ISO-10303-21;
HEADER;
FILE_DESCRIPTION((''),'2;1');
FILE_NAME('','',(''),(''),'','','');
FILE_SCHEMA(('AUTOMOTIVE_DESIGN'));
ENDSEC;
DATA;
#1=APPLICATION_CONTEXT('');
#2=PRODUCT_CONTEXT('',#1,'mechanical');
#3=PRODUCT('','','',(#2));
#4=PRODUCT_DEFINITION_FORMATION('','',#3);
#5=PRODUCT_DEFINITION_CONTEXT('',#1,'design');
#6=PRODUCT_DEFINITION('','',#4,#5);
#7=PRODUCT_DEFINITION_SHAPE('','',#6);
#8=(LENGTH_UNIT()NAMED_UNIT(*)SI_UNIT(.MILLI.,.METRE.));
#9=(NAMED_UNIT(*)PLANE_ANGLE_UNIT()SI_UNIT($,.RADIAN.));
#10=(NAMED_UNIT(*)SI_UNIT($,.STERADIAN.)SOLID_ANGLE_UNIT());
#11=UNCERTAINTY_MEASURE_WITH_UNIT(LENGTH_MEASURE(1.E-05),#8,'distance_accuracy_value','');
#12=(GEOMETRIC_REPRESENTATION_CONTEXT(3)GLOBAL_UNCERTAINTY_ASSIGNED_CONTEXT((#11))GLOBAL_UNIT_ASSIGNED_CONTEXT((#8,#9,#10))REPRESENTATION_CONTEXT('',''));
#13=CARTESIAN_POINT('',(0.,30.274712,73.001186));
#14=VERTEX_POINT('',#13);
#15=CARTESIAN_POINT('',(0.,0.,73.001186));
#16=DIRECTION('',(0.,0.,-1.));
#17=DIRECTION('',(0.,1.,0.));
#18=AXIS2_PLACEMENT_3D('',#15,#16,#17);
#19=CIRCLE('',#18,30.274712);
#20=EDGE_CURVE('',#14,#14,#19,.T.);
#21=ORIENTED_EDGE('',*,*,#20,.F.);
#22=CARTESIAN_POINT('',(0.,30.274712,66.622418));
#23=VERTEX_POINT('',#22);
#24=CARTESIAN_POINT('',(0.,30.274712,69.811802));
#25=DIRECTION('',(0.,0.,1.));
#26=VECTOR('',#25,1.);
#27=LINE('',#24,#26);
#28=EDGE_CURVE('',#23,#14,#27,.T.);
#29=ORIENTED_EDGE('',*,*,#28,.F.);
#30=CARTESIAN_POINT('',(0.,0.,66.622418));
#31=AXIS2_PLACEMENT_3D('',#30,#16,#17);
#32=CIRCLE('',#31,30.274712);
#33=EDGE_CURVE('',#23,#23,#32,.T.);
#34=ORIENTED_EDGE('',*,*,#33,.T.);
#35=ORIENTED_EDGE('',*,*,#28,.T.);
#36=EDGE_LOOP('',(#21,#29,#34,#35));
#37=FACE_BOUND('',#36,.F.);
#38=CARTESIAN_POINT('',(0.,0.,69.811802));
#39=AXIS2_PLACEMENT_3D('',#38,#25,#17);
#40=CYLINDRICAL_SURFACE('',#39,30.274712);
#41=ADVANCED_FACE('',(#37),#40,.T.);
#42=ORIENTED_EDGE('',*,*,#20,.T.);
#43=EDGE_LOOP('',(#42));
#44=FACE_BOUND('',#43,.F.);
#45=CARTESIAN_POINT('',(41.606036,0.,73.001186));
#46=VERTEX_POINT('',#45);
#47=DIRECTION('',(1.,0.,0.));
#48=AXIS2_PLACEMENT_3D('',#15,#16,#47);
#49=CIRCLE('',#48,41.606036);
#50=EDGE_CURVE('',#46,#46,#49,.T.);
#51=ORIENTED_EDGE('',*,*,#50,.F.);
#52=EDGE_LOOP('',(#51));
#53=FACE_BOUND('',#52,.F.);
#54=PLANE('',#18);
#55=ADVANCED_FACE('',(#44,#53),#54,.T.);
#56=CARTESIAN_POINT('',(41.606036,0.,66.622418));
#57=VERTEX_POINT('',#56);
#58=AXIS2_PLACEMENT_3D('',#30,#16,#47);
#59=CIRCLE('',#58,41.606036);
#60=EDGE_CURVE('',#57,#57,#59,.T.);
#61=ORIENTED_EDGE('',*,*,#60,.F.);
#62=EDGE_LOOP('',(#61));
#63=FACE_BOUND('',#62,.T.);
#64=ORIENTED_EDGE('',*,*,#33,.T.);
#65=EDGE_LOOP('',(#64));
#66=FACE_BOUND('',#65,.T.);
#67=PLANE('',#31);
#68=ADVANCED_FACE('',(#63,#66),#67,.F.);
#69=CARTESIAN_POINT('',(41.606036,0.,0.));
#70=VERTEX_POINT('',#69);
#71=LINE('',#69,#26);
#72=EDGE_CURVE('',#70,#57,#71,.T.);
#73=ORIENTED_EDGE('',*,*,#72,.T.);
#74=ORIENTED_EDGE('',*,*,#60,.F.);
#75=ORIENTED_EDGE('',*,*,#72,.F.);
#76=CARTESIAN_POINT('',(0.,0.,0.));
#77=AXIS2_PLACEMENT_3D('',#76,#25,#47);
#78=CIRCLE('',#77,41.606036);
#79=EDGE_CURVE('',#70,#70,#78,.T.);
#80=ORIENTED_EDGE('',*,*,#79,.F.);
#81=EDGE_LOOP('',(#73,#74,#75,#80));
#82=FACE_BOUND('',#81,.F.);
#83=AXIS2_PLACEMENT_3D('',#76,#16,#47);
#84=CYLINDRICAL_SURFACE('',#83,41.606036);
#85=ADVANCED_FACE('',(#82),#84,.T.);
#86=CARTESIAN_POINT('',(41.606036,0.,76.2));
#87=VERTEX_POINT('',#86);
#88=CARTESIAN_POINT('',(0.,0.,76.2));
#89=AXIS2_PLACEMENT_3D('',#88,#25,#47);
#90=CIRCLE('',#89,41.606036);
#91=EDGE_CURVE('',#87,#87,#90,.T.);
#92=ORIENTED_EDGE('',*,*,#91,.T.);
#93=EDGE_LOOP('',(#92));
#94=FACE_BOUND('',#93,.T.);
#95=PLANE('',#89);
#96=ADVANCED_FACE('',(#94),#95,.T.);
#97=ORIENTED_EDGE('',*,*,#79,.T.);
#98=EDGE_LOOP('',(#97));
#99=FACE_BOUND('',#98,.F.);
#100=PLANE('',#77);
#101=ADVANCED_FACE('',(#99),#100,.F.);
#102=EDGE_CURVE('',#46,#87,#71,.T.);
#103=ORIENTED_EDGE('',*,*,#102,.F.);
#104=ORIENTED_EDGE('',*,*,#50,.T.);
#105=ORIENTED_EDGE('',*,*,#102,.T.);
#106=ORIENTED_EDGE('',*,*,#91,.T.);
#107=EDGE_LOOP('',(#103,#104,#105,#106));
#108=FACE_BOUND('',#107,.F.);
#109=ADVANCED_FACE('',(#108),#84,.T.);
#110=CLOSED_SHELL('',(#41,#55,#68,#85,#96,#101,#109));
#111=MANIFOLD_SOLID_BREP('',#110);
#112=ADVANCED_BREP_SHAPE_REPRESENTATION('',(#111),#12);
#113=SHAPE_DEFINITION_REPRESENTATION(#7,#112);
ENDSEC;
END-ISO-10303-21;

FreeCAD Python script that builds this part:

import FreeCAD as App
import Part
import Sketcher
from FreeCAD import Vector
Q = App.Units.Quantity

doc = App.newDocument("Part")
params = doc.addObject("Spreadsheet::Sheet", "Params")
for row, (alias, value) in enumerate([
    ("pad1_length", "3 in"),
    ("groove_angle", "360 deg"),
], start=1):
    params.set(f"A{row}", alias)
    params.set(f"B{row}", "=" + value)
    params.setAlias(f"B{row}", alias)

body = doc.addObject("PartDesign::Body", "Body")

# Sketch on XY plane
sketch1 = body.newObject("Sketcher::SketchObject", "Sketch")
sketch1.AttachmentSupport = (doc.getObject("XY_Plane"), [""])
sketch1.MapMode = "FlatFace"
sketch1.addGeometry(Part.Circle(Vector(0, 0, 0), Vector(0, 0, 1), 42), False)
sketch1.addConstraint([
    Sketcher.Constraint("Coincident", 0, 3, -1, 1),
    Sketcher.Constraint("Diameter", 0, Q("83.212072 mm")),
])
pad1 = body.newObject("PartDesign::Pad", "Pad")
pad1.Profile = sketch1
pad1.setExpression("Length", "Params.pad1_length")

# Sketch on YZ plane
sketch2 = body.newObject("Sketcher::SketchObject", "Sketch001")
sketch2.AttachmentSupport = (doc.getObject("YZ_Plane"), [""])
sketch2.MapMode = "FlatFace"
sketch2.addGeometry([
    Part.LineSegment(Vector(30, 73, 0), Vector(30, 67, 0)),
    Part.LineSegment(Vector(30, 67, 0), Vector(53, 67, 0)),
    Part.LineSegment(Vector(53, 67, 0), Vector(53, 73, 0)),
    Part.LineSegment(Vector(53, 73, 0), Vector(30, 73, 0)),
], False)
sketch2.addConstraint([
    Sketcher.Constraint("Coincident", 0, 2, 1, 1),
    Sketcher.Constraint("Coincident", 1, 2, 2, 1),
    Sketcher.Constraint("Coincident", 2, 2, 3, 1),
    Sketcher.Constraint("Coincident", 3, 2, 0, 1),
    Sketcher.Constraint("Vertical", 0),
    Sketcher.Constraint("Horizontal", 1),
    Sketcher.Constraint("Vertical", 2),
    Sketcher.Constraint("Horizontal", 3),
    Sketcher.Constraint("DistanceX", 1, 1, 1, 2, Q("22.467411 mm")),
    Sketcher.Constraint("DistanceY", 0, 2, 0, 1, Q("6.378767 mm")),
    Sketcher.Constraint("DistanceY", -1, 1, 0, 2, Q("66.622418 mm")),
    Sketcher.Constraint("DistanceX", -1, 1, 0, 2, Q("30.274712 mm")),
])
groove = body.newObject("PartDesign::Groove", "Groove")
groove.Profile = sketch2
groove.ReferenceAxis = (sketch2, ["V_Axis"])
groove.setExpression("Angle", "Params.groove_angle")

doc.recompute()
